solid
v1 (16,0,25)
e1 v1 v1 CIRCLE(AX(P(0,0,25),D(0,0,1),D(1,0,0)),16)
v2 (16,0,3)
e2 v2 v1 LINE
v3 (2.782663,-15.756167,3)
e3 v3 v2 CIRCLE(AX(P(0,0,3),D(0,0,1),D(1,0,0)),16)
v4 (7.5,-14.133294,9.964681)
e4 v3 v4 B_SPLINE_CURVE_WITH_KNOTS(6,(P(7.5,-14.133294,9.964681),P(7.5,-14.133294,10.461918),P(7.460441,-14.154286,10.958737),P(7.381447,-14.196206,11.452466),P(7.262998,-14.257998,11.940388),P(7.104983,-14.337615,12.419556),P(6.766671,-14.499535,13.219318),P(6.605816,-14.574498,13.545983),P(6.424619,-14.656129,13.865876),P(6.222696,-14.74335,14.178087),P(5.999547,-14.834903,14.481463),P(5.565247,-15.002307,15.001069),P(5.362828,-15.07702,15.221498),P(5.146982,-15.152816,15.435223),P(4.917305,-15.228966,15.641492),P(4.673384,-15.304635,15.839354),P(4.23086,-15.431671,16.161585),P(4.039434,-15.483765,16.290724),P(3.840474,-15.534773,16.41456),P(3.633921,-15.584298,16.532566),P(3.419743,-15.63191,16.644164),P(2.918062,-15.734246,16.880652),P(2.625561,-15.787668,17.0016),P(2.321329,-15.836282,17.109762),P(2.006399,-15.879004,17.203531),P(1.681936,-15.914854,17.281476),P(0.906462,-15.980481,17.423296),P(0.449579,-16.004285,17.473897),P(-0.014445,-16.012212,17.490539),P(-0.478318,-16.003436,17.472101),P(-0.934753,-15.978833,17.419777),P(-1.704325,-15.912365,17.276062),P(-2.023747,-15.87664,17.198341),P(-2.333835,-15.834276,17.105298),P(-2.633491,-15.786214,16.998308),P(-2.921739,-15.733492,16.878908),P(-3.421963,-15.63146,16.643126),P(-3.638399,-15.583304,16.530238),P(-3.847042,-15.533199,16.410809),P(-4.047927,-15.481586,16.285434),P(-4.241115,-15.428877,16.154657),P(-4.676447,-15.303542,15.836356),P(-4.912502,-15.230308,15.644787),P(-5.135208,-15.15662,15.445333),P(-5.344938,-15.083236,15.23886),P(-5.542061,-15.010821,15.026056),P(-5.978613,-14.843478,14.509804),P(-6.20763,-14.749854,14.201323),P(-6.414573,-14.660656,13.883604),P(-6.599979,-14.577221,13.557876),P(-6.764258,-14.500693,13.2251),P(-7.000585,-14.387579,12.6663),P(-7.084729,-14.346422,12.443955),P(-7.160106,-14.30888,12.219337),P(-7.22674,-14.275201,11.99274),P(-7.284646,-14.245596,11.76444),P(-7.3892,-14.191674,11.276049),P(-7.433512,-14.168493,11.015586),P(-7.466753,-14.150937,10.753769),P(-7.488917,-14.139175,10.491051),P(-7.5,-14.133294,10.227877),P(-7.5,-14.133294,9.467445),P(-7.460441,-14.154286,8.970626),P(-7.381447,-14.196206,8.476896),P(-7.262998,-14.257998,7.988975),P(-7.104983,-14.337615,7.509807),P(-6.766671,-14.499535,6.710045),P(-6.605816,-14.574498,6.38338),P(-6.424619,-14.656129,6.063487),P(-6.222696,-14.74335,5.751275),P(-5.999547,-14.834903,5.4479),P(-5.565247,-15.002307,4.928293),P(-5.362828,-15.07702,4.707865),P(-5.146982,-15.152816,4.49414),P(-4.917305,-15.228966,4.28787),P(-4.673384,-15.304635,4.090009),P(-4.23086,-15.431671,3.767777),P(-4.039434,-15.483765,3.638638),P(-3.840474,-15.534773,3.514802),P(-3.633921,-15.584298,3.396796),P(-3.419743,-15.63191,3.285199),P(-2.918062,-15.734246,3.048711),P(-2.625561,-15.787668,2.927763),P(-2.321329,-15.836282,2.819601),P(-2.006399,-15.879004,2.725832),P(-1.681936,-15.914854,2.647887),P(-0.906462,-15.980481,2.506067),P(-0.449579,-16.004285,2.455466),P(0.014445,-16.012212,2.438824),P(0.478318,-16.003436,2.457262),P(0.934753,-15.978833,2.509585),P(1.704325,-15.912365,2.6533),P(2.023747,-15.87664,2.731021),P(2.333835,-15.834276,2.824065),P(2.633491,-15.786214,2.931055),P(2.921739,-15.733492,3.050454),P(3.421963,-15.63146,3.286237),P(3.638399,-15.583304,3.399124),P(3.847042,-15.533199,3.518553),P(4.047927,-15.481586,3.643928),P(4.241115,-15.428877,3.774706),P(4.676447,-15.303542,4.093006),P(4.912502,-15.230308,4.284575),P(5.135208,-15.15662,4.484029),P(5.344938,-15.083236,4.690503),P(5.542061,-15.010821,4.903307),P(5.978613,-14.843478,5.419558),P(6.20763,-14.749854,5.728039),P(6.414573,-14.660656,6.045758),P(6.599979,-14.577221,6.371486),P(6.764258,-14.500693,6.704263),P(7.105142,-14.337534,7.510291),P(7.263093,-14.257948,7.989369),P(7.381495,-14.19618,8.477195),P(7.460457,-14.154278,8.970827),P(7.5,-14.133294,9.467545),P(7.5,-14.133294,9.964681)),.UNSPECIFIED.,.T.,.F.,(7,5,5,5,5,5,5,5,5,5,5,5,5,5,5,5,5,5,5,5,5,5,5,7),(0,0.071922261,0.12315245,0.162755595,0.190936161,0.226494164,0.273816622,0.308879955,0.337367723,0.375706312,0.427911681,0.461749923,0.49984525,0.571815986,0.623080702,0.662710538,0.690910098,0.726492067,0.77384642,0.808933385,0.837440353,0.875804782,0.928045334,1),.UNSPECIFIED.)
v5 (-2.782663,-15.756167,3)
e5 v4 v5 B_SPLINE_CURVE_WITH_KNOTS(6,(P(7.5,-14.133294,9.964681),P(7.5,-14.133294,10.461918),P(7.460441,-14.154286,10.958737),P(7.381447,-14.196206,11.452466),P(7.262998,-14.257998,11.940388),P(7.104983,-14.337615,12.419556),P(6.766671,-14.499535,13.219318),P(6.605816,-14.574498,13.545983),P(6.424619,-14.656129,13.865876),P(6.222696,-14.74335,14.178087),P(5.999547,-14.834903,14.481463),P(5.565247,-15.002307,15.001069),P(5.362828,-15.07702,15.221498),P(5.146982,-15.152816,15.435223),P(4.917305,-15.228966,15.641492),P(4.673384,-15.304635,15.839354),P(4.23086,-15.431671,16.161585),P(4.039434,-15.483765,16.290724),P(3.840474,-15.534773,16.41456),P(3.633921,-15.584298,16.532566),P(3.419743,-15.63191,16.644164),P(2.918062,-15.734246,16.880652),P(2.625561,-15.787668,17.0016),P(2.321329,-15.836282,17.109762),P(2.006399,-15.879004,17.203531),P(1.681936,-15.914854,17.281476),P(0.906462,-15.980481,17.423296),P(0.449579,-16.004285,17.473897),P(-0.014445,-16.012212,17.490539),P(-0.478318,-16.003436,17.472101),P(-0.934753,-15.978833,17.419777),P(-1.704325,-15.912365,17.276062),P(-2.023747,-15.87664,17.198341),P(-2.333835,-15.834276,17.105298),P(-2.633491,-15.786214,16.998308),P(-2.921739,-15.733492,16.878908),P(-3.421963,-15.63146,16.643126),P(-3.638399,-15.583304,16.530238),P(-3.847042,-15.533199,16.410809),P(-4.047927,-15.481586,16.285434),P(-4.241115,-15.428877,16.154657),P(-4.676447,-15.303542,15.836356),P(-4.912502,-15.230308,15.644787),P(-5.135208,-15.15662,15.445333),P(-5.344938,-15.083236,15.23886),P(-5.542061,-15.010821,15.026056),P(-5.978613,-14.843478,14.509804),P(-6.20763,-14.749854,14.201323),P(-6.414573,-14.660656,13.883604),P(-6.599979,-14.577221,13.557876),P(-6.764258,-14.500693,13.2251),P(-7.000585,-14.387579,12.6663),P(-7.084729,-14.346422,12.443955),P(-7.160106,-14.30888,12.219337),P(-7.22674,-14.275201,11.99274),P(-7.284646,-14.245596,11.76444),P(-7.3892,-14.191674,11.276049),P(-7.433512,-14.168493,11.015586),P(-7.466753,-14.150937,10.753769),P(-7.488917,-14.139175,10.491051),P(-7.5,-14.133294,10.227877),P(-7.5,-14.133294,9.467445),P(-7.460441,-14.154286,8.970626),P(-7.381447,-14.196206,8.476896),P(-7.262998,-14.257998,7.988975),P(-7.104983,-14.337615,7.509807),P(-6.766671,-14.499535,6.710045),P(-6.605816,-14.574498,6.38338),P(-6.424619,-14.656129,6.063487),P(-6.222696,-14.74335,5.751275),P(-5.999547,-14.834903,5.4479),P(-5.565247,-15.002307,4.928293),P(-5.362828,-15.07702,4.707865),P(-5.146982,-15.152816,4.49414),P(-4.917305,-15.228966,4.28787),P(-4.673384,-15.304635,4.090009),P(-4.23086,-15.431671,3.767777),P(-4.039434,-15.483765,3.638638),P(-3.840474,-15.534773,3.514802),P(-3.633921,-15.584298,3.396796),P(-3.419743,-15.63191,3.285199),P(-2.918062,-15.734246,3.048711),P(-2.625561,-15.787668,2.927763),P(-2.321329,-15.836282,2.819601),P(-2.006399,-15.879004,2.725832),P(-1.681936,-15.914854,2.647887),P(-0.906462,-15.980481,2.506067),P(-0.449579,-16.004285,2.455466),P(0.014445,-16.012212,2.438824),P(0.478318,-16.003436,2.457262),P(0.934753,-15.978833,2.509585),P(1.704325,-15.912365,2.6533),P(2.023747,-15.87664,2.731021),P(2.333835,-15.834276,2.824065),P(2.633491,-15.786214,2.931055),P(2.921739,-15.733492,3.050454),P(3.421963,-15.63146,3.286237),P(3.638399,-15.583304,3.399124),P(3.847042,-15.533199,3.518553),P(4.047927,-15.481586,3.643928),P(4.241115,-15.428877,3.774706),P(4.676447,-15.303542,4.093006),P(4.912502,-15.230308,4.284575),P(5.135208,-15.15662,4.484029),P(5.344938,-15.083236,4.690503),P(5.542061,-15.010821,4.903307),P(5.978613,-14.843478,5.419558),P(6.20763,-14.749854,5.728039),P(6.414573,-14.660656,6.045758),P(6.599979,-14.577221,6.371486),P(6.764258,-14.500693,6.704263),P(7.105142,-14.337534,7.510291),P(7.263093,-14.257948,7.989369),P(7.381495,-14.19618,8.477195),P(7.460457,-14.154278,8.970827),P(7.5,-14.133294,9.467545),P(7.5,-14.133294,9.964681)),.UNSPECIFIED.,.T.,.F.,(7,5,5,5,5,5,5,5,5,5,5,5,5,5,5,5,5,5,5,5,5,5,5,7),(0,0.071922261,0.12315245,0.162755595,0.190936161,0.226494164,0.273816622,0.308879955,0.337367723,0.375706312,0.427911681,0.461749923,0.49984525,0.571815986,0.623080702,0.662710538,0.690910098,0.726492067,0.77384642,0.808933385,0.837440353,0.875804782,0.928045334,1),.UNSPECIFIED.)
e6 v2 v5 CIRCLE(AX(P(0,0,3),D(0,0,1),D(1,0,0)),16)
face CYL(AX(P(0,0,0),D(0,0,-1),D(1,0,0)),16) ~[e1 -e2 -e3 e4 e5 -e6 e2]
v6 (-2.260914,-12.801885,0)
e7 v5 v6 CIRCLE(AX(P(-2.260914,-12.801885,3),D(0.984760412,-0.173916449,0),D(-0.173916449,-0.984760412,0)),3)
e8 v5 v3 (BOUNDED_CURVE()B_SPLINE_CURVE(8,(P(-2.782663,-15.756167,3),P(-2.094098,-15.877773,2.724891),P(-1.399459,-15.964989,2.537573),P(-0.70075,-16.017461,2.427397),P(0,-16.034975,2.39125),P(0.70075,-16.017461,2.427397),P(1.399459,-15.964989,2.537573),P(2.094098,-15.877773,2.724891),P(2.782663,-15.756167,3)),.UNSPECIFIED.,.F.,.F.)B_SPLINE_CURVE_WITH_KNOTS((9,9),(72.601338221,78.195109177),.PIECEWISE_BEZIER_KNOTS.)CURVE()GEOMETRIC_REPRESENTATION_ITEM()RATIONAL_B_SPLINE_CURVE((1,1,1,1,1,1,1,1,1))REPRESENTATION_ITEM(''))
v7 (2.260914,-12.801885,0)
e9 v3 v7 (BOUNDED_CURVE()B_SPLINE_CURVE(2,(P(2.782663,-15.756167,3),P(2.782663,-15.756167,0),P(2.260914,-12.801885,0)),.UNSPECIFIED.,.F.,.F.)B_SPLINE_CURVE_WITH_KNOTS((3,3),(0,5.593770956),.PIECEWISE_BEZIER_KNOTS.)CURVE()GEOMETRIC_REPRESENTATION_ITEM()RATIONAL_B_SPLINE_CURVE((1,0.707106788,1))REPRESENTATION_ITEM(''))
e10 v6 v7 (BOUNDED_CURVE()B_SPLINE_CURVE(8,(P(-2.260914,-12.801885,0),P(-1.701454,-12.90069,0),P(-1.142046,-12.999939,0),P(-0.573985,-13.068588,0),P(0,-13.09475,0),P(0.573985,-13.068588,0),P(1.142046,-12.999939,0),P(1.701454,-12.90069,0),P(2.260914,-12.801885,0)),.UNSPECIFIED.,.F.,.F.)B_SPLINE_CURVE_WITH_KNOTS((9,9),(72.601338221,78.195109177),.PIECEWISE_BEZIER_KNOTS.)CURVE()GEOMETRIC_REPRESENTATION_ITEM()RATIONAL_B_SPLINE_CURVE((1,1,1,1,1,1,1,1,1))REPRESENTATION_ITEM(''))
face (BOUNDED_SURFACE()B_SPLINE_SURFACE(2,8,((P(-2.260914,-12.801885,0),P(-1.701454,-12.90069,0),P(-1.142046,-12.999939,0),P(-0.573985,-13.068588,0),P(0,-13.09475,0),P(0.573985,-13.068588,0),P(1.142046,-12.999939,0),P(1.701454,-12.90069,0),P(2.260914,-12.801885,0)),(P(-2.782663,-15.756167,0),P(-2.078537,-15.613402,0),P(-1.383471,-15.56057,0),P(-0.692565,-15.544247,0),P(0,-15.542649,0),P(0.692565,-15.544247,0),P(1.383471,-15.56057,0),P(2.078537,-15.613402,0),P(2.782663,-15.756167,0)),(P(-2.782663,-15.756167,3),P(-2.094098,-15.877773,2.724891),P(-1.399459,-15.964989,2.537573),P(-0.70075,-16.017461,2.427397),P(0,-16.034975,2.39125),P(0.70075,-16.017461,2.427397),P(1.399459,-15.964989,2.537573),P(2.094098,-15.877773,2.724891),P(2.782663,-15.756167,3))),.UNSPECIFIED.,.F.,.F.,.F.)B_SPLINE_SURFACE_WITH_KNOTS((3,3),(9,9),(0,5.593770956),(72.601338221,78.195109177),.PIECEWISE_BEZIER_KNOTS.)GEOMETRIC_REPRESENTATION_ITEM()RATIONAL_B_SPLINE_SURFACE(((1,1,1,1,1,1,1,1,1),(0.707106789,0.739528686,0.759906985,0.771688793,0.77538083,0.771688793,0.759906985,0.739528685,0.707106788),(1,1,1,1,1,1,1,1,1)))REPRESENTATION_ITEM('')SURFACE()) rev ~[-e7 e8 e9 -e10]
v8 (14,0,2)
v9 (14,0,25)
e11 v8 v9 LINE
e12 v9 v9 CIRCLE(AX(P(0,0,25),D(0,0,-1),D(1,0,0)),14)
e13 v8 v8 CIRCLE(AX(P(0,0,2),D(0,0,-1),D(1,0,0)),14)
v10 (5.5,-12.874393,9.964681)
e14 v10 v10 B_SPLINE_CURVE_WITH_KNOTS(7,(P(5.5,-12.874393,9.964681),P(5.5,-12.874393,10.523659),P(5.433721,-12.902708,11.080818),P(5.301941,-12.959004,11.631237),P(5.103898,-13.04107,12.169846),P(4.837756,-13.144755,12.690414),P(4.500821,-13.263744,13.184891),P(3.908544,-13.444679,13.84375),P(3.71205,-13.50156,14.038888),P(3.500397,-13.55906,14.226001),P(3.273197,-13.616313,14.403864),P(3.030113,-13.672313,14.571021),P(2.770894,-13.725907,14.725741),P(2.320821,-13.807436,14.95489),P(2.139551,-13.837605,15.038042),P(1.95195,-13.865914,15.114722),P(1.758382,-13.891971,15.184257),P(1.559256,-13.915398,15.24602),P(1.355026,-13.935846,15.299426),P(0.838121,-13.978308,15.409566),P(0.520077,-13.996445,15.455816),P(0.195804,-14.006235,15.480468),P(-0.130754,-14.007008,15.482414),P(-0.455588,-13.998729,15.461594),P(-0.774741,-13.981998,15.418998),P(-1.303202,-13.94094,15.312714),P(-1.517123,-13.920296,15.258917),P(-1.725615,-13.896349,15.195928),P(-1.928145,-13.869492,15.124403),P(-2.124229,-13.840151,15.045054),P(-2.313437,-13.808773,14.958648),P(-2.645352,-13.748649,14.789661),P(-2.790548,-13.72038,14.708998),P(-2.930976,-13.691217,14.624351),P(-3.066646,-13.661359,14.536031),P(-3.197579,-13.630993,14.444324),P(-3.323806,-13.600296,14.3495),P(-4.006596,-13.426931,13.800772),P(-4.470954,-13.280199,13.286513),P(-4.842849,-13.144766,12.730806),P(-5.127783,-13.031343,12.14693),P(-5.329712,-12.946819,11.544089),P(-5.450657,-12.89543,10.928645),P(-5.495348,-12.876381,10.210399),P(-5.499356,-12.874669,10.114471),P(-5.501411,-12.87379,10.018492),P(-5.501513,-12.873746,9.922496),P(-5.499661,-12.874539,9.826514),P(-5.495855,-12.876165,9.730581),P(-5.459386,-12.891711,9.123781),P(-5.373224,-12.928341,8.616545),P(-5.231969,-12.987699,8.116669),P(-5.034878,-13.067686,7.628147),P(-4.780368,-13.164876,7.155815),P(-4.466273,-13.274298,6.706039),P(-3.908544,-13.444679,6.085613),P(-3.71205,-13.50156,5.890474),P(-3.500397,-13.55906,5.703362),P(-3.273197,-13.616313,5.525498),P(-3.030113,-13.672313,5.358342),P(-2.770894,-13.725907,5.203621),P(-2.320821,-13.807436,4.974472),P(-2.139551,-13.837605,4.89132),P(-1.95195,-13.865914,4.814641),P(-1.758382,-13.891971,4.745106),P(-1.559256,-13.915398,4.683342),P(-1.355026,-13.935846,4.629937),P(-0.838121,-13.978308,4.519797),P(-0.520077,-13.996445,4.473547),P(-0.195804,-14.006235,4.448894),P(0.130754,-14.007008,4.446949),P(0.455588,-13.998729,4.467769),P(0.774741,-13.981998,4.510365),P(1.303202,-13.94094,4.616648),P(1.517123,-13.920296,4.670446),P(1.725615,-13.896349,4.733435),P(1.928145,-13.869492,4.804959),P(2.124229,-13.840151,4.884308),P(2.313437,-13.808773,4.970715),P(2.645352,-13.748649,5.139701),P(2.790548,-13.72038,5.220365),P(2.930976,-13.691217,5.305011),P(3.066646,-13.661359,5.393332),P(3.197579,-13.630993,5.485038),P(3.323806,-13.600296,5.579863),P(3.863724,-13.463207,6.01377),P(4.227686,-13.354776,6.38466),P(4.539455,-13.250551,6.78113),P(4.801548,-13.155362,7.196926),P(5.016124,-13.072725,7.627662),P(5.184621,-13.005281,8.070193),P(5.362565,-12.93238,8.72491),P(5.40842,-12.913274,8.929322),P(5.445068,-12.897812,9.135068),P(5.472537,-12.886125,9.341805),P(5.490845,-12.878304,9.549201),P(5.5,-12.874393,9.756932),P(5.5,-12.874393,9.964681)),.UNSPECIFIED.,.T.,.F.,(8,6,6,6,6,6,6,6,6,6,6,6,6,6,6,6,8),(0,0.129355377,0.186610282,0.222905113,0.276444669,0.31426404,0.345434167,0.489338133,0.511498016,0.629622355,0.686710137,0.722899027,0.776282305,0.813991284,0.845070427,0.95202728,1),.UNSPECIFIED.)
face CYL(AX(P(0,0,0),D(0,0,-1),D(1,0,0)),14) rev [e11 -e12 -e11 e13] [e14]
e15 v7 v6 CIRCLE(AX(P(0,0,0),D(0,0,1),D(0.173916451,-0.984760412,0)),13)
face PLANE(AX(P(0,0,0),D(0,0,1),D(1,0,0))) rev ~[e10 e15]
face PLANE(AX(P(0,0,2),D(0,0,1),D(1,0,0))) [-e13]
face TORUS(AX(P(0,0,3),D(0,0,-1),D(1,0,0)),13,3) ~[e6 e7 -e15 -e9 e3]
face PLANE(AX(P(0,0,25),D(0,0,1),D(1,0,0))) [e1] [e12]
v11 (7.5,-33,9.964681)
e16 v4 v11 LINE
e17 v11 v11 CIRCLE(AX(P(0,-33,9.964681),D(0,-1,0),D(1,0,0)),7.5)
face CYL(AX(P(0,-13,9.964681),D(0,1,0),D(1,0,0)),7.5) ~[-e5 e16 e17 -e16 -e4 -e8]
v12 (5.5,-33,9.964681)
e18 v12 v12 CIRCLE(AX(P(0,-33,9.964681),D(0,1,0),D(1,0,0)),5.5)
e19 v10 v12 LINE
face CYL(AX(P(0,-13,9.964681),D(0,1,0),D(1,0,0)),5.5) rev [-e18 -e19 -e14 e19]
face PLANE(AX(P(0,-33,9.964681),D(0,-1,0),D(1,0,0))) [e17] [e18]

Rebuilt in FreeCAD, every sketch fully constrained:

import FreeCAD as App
import Part
import Sketcher


def edges_at(feature, points):
    """Names of the edges that pass closest to the given points."""
    edges = feature.Shape.Edges
    near = lambda p: min(range(len(edges)), key=lambda i: edges[i].distToShape(Part.Vertex(*p))[0])
    return sorted({f"Edge{near(p) + 1}" for p in points})


def faces_at(feature, points):
    """Names of the faces that lie closest to the given points."""
    faces = feature.Shape.Faces
    near = lambda p: min(range(len(faces)), key=lambda i: faces[i].distToShape(Part.Vertex(*p))[0])
    return sorted({f"Face{near(p) + 1}" for p in points})

doc = App.newDocument("Part")
body = doc.addObject("PartDesign::Body", "Body")

# Sketch on XY plane
sketch1 = doc.addObject("Sketcher::SketchObject", "Sketch")
body.addObject(sketch1)
sketch1.AttachmentSupport = (doc.XY_Plane, [""])
sketch1.MapMode = "FlatFace"
sketch1.addGeometry(Part.Circle(App.Vector(0, 0, 0), App.Vector(0, 0, 1), 16), False)
sketch1.addConstraint([
    Sketcher.Constraint("Coincident", 0, 3, -1, 1),
    Sketcher.Constraint("Diameter", 0, 32.0),
])
pad1 = doc.addObject("PartDesign::Pad", "Pad")
body.addObject(pad1)
pad1.Profile = sketch1
pad1.Length = 25

# Sketch on XZ plane
sketch2 = doc.addObject("Sketcher::SketchObject", "Sketch001")
body.addObject(sketch2)
sketch2.AttachmentSupport = (doc.XZ_Plane, [""])
sketch2.MapMode = "FlatFace"
sketch2.AttachmentOffset = App.Placement(App.Vector(0, 0, 13), App.Rotation())
sketch2.addGeometry(Part.Circle(App.Vector(0, 10, 0), App.Vector(0, 0, 1), 8), False)
sketch2.addConstraint([
    Sketcher.Constraint("PointOnObject", 0, 3, -2),
    Sketcher.Constraint("Diameter", 0, 15.0),
    Sketcher.Constraint("DistanceY", -1, 1, 0, 3, 9.964681),
])
pad2 = doc.addObject("PartDesign::Pad", "Pad001")
body.addObject(pad2)
pad2.Profile = sketch2
pad2.Length = 20
doc.recompute()

thickness = doc.addObject("PartDesign::Thickness", "Thickness")
body.addObject(thickness)
thickness.Base = (pad2, faces_at(pad2, [(0, 0, 25), (0, -33, 9.965)]))
thickness.Value = 2
thickness.Reversed = True
thickness.Join = "Intersection"
doc.recompute()

fillet = doc.addObject("PartDesign::Fillet", "Fillet")
body.addObject(fillet)
fillet.Base = (thickness, edges_at(thickness, [(-16, 0, 0)]))
fillet.Radius = 3

doc.recompute()
